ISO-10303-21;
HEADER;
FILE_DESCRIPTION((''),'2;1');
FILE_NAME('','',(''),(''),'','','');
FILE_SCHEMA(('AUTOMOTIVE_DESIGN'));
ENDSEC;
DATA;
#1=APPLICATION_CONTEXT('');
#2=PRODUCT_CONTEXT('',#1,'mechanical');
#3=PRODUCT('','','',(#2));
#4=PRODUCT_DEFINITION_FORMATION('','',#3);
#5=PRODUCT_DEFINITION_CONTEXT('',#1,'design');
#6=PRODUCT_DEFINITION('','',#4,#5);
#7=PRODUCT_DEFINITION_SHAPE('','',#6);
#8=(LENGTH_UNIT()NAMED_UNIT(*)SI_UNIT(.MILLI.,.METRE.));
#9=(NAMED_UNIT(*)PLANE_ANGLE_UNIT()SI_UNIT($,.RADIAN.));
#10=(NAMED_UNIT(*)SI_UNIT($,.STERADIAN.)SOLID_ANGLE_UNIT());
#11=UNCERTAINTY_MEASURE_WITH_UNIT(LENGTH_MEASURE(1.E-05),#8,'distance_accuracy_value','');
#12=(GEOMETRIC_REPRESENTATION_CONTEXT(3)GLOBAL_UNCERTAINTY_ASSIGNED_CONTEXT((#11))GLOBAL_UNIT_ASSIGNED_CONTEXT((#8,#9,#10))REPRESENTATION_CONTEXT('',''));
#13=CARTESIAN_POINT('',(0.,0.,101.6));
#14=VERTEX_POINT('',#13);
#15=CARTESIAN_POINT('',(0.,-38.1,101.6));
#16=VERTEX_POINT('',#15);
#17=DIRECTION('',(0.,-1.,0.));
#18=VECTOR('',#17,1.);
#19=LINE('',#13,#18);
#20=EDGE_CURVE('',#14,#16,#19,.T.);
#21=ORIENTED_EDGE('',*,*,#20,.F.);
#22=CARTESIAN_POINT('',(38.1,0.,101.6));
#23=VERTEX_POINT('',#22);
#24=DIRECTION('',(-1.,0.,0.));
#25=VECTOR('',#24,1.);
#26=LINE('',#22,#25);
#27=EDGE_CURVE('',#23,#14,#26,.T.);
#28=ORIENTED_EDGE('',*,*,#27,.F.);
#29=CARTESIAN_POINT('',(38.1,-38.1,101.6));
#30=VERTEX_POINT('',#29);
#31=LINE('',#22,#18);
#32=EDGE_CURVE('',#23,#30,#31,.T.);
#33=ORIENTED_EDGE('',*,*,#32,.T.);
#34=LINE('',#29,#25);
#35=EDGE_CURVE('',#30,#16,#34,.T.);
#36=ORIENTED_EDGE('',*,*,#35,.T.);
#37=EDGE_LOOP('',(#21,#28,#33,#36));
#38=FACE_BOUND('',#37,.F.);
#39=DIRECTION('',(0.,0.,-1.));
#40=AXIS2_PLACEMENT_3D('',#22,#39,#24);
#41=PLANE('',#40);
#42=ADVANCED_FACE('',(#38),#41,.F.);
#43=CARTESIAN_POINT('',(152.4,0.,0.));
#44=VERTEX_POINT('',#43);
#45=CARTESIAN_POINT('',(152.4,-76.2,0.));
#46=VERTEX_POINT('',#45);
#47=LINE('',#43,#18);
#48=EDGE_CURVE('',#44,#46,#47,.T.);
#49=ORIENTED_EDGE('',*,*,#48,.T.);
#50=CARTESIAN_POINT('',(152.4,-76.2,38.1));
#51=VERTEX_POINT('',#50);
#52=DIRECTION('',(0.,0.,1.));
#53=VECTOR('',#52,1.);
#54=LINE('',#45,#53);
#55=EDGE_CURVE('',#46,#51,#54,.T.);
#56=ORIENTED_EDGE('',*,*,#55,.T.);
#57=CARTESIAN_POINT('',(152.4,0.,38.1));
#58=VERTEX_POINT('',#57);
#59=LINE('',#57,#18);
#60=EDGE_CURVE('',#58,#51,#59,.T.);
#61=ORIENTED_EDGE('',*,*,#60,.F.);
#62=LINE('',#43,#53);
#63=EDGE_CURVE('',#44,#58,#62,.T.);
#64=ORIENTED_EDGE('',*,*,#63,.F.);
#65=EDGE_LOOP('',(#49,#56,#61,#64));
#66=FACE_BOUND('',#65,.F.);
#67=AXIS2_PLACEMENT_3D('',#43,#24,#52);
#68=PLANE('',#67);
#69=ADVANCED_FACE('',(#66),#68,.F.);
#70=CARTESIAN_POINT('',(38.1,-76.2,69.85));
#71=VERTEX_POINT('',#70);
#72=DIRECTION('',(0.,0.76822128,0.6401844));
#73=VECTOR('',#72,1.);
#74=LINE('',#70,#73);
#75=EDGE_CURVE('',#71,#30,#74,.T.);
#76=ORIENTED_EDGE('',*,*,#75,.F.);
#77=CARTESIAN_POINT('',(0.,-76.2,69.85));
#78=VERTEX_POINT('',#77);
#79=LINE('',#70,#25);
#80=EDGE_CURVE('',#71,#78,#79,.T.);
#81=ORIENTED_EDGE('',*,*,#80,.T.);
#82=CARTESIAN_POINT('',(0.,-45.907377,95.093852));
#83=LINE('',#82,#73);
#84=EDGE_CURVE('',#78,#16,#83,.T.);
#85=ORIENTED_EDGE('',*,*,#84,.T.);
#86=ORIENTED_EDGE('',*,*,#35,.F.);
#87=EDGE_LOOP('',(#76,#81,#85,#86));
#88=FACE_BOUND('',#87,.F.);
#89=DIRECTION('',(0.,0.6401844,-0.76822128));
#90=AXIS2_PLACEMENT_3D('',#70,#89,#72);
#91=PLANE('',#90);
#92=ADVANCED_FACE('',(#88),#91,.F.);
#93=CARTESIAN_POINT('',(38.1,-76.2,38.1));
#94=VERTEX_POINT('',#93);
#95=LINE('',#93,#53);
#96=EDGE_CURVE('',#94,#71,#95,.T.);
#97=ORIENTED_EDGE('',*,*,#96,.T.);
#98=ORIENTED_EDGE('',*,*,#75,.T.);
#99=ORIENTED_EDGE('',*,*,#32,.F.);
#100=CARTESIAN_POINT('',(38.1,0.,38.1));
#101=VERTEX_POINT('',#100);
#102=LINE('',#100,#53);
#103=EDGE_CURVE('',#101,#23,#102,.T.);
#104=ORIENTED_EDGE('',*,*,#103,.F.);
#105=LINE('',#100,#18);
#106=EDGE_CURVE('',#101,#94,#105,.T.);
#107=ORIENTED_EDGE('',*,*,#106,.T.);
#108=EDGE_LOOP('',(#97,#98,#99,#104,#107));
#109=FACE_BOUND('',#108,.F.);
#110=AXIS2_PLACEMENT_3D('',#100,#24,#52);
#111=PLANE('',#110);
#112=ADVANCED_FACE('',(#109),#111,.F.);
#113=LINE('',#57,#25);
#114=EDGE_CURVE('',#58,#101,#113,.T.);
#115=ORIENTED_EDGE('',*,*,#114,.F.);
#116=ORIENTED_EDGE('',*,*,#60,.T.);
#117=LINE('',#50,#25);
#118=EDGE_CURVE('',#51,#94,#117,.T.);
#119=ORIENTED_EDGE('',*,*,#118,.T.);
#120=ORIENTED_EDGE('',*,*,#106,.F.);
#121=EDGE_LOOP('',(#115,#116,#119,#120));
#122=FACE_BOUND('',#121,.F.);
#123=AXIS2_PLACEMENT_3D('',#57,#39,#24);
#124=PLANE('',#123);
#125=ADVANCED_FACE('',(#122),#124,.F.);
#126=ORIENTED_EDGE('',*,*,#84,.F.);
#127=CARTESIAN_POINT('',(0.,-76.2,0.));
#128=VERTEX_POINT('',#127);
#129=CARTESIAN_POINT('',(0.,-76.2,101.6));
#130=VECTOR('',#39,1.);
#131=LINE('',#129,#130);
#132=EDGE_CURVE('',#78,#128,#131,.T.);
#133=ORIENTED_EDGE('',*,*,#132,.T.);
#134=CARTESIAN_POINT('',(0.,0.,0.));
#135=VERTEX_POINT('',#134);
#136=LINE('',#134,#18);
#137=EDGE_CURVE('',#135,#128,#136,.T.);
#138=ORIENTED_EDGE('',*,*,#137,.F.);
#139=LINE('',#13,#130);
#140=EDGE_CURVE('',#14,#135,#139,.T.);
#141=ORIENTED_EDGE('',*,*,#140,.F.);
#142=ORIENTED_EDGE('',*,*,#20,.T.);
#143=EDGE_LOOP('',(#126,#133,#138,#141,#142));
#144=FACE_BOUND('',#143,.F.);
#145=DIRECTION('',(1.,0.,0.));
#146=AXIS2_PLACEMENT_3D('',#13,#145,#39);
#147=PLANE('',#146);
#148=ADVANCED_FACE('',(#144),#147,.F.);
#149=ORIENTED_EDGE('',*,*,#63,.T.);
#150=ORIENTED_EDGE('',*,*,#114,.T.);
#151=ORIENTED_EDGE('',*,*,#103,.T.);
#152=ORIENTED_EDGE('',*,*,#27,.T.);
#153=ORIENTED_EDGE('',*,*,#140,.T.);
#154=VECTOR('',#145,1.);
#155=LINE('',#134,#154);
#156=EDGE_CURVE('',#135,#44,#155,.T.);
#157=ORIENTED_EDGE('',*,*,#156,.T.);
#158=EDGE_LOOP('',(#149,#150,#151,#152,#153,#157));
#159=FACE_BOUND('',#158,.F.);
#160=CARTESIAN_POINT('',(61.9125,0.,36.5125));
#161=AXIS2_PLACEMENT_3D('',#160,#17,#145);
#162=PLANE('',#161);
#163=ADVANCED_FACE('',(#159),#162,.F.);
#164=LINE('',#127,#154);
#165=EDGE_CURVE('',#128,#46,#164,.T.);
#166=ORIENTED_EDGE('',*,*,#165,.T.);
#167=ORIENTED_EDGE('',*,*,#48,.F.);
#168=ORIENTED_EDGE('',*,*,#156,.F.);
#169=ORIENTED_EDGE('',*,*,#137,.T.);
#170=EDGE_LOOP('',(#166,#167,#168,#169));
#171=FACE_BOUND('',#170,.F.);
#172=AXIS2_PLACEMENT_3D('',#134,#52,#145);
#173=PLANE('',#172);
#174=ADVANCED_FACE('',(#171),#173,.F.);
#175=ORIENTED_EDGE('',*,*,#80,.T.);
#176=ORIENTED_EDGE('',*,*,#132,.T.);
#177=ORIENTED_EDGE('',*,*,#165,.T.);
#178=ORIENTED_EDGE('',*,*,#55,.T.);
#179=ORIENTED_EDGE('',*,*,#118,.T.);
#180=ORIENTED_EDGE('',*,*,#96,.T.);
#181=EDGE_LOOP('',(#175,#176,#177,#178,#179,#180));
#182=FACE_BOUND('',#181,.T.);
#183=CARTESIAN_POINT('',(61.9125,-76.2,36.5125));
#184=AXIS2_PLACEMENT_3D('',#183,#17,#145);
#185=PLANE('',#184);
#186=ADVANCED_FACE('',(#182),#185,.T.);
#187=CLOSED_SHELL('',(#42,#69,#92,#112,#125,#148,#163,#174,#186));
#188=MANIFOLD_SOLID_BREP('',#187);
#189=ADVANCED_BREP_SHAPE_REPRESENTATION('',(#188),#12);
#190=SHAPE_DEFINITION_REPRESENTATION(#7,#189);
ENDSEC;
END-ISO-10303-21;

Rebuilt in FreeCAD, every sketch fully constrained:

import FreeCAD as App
import Part
import Sketcher

V = App.Vector
Q = App.Units.Quantity

doc = App.newDocument("Part")
body = doc.addObject("PartDesign::Body", "Body")

# Sketch on XZ plane
sketch1 = body.newObject("Sketcher::SketchObject", "Sketch")
sketch1.AttachmentSupport = (doc.getObject("XZ_Plane"), [""])
sketch1.MapMode = "FlatFace"
sketch1.addGeometry([
    Part.LineSegment(V(0, 101.6, 0), V(0, 0, 0)),  # 0
    Part.LineSegment(V(0, 0, 0), V(152.4, 0, 0)),  # 1
    Part.LineSegment(V(152.4, 0, 0), V(152.4, 38.1, 0)),  # 2
    Part.LineSegment(V(152.4, 38.1, 0), V(38.1, 38.1, 0)),  # 3
    Part.LineSegment(V(38.1, 38.1, 0), V(38.1, 101.6, 0)),  # 4
    Part.LineSegment(V(38.1, 101.6, 0), V(0, 101.6, 0)),  # 5
], False)
sketch1.addConstraint([
    Sketcher.Constraint("Coincident", 0, 2, 1, 1),
    Sketcher.Constraint("Coincident", 1, 2, 2, 1),
    Sketcher.Constraint("Coincident", 2, 2, 3, 1),
    Sketcher.Constraint("Coincident", 3, 2, 4, 1),
    Sketcher.Constraint("Coincident", 4, 2, 5, 1),
    Sketcher.Constraint("Coincident", 5, 2, 0, 1),
    Sketcher.Constraint("Vertical", 0),
    Sketcher.Constraint("Horizontal", 1),
    Sketcher.Constraint("Vertical", 2),
    Sketcher.Constraint("Horizontal", 3),
    Sketcher.Constraint("Vertical", 4),
    Sketcher.Constraint("Horizontal", 5),
    Sketcher.Constraint("Coincident", 0, 2, -1, 1),
    Sketcher.Constraint("Equal", 5, 2),
    Sketcher.Constraint("DistanceX", 1, 1, 1, 2, Q("6 in")),
    Sketcher.Constraint("DistanceY", 0, 2, 0, 1, Q("4 in")),
    Sketcher.Constraint("DistanceX", 3, 2, 3, 1, Q("4.5 in")),
])
pad1 = body.newObject("PartDesign::Pad", "Pad")
pad1.Profile = sketch1
pad1.Length = Q("3 in")

# Sketch on YZ plane
sketch2 = body.newObject("Sketcher::SketchObject", "Sketch001")
sketch2.AttachmentSupport = (doc.getObject("YZ_Plane"), [""])
sketch2.MapMode = "FlatFace"
sketch2.AttachmentOffset = App.Placement(V(0, 0, 1.5 * 25.4), App.Rotation())
sketch2.addGeometry([
    Part.LineSegment(V(-76.2, 69.85, 0), V(-38.1, 101.6, 0)),
    Part.LineSegment(V(-38.1, 101.6, 0), V(-76.2, 101.6, 0)),
    Part.LineSegment(V(-76.2, 101.6, 0), V(-76.2, 69.85, 0)),
], False)
sketch2.addConstraint([
    Sketcher.Constraint("Coincident", 0, 2, 1, 1),
    Sketcher.Constraint("Coincident", 1, 2, 2, 1),
    Sketcher.Constraint("Coincident", 2, 2, 0, 1),
    Sketcher.Constraint("Horizontal", 1),
    Sketcher.Constraint("Vertical", 2),
    Sketcher.Constraint("DistanceX", 1, 2, 1, 1, Q("1.5 in")),
    Sketcher.Constraint("DistanceY", -1, 1, 0, 2, Q("4 in")),
    Sketcher.Constraint("DistanceX", 1, 2, -1, 1, Q("3 in")),
    Sketcher.Constraint("DistanceY", 2, 2, 2, 1, Q("1.25 in")),
])
pocket1 = body.newObject("PartDesign::Pocket", "Pocket")
pocket1.Profile = sketch2
pocket1.Type = "ThroughAll"

doc.recompute()
